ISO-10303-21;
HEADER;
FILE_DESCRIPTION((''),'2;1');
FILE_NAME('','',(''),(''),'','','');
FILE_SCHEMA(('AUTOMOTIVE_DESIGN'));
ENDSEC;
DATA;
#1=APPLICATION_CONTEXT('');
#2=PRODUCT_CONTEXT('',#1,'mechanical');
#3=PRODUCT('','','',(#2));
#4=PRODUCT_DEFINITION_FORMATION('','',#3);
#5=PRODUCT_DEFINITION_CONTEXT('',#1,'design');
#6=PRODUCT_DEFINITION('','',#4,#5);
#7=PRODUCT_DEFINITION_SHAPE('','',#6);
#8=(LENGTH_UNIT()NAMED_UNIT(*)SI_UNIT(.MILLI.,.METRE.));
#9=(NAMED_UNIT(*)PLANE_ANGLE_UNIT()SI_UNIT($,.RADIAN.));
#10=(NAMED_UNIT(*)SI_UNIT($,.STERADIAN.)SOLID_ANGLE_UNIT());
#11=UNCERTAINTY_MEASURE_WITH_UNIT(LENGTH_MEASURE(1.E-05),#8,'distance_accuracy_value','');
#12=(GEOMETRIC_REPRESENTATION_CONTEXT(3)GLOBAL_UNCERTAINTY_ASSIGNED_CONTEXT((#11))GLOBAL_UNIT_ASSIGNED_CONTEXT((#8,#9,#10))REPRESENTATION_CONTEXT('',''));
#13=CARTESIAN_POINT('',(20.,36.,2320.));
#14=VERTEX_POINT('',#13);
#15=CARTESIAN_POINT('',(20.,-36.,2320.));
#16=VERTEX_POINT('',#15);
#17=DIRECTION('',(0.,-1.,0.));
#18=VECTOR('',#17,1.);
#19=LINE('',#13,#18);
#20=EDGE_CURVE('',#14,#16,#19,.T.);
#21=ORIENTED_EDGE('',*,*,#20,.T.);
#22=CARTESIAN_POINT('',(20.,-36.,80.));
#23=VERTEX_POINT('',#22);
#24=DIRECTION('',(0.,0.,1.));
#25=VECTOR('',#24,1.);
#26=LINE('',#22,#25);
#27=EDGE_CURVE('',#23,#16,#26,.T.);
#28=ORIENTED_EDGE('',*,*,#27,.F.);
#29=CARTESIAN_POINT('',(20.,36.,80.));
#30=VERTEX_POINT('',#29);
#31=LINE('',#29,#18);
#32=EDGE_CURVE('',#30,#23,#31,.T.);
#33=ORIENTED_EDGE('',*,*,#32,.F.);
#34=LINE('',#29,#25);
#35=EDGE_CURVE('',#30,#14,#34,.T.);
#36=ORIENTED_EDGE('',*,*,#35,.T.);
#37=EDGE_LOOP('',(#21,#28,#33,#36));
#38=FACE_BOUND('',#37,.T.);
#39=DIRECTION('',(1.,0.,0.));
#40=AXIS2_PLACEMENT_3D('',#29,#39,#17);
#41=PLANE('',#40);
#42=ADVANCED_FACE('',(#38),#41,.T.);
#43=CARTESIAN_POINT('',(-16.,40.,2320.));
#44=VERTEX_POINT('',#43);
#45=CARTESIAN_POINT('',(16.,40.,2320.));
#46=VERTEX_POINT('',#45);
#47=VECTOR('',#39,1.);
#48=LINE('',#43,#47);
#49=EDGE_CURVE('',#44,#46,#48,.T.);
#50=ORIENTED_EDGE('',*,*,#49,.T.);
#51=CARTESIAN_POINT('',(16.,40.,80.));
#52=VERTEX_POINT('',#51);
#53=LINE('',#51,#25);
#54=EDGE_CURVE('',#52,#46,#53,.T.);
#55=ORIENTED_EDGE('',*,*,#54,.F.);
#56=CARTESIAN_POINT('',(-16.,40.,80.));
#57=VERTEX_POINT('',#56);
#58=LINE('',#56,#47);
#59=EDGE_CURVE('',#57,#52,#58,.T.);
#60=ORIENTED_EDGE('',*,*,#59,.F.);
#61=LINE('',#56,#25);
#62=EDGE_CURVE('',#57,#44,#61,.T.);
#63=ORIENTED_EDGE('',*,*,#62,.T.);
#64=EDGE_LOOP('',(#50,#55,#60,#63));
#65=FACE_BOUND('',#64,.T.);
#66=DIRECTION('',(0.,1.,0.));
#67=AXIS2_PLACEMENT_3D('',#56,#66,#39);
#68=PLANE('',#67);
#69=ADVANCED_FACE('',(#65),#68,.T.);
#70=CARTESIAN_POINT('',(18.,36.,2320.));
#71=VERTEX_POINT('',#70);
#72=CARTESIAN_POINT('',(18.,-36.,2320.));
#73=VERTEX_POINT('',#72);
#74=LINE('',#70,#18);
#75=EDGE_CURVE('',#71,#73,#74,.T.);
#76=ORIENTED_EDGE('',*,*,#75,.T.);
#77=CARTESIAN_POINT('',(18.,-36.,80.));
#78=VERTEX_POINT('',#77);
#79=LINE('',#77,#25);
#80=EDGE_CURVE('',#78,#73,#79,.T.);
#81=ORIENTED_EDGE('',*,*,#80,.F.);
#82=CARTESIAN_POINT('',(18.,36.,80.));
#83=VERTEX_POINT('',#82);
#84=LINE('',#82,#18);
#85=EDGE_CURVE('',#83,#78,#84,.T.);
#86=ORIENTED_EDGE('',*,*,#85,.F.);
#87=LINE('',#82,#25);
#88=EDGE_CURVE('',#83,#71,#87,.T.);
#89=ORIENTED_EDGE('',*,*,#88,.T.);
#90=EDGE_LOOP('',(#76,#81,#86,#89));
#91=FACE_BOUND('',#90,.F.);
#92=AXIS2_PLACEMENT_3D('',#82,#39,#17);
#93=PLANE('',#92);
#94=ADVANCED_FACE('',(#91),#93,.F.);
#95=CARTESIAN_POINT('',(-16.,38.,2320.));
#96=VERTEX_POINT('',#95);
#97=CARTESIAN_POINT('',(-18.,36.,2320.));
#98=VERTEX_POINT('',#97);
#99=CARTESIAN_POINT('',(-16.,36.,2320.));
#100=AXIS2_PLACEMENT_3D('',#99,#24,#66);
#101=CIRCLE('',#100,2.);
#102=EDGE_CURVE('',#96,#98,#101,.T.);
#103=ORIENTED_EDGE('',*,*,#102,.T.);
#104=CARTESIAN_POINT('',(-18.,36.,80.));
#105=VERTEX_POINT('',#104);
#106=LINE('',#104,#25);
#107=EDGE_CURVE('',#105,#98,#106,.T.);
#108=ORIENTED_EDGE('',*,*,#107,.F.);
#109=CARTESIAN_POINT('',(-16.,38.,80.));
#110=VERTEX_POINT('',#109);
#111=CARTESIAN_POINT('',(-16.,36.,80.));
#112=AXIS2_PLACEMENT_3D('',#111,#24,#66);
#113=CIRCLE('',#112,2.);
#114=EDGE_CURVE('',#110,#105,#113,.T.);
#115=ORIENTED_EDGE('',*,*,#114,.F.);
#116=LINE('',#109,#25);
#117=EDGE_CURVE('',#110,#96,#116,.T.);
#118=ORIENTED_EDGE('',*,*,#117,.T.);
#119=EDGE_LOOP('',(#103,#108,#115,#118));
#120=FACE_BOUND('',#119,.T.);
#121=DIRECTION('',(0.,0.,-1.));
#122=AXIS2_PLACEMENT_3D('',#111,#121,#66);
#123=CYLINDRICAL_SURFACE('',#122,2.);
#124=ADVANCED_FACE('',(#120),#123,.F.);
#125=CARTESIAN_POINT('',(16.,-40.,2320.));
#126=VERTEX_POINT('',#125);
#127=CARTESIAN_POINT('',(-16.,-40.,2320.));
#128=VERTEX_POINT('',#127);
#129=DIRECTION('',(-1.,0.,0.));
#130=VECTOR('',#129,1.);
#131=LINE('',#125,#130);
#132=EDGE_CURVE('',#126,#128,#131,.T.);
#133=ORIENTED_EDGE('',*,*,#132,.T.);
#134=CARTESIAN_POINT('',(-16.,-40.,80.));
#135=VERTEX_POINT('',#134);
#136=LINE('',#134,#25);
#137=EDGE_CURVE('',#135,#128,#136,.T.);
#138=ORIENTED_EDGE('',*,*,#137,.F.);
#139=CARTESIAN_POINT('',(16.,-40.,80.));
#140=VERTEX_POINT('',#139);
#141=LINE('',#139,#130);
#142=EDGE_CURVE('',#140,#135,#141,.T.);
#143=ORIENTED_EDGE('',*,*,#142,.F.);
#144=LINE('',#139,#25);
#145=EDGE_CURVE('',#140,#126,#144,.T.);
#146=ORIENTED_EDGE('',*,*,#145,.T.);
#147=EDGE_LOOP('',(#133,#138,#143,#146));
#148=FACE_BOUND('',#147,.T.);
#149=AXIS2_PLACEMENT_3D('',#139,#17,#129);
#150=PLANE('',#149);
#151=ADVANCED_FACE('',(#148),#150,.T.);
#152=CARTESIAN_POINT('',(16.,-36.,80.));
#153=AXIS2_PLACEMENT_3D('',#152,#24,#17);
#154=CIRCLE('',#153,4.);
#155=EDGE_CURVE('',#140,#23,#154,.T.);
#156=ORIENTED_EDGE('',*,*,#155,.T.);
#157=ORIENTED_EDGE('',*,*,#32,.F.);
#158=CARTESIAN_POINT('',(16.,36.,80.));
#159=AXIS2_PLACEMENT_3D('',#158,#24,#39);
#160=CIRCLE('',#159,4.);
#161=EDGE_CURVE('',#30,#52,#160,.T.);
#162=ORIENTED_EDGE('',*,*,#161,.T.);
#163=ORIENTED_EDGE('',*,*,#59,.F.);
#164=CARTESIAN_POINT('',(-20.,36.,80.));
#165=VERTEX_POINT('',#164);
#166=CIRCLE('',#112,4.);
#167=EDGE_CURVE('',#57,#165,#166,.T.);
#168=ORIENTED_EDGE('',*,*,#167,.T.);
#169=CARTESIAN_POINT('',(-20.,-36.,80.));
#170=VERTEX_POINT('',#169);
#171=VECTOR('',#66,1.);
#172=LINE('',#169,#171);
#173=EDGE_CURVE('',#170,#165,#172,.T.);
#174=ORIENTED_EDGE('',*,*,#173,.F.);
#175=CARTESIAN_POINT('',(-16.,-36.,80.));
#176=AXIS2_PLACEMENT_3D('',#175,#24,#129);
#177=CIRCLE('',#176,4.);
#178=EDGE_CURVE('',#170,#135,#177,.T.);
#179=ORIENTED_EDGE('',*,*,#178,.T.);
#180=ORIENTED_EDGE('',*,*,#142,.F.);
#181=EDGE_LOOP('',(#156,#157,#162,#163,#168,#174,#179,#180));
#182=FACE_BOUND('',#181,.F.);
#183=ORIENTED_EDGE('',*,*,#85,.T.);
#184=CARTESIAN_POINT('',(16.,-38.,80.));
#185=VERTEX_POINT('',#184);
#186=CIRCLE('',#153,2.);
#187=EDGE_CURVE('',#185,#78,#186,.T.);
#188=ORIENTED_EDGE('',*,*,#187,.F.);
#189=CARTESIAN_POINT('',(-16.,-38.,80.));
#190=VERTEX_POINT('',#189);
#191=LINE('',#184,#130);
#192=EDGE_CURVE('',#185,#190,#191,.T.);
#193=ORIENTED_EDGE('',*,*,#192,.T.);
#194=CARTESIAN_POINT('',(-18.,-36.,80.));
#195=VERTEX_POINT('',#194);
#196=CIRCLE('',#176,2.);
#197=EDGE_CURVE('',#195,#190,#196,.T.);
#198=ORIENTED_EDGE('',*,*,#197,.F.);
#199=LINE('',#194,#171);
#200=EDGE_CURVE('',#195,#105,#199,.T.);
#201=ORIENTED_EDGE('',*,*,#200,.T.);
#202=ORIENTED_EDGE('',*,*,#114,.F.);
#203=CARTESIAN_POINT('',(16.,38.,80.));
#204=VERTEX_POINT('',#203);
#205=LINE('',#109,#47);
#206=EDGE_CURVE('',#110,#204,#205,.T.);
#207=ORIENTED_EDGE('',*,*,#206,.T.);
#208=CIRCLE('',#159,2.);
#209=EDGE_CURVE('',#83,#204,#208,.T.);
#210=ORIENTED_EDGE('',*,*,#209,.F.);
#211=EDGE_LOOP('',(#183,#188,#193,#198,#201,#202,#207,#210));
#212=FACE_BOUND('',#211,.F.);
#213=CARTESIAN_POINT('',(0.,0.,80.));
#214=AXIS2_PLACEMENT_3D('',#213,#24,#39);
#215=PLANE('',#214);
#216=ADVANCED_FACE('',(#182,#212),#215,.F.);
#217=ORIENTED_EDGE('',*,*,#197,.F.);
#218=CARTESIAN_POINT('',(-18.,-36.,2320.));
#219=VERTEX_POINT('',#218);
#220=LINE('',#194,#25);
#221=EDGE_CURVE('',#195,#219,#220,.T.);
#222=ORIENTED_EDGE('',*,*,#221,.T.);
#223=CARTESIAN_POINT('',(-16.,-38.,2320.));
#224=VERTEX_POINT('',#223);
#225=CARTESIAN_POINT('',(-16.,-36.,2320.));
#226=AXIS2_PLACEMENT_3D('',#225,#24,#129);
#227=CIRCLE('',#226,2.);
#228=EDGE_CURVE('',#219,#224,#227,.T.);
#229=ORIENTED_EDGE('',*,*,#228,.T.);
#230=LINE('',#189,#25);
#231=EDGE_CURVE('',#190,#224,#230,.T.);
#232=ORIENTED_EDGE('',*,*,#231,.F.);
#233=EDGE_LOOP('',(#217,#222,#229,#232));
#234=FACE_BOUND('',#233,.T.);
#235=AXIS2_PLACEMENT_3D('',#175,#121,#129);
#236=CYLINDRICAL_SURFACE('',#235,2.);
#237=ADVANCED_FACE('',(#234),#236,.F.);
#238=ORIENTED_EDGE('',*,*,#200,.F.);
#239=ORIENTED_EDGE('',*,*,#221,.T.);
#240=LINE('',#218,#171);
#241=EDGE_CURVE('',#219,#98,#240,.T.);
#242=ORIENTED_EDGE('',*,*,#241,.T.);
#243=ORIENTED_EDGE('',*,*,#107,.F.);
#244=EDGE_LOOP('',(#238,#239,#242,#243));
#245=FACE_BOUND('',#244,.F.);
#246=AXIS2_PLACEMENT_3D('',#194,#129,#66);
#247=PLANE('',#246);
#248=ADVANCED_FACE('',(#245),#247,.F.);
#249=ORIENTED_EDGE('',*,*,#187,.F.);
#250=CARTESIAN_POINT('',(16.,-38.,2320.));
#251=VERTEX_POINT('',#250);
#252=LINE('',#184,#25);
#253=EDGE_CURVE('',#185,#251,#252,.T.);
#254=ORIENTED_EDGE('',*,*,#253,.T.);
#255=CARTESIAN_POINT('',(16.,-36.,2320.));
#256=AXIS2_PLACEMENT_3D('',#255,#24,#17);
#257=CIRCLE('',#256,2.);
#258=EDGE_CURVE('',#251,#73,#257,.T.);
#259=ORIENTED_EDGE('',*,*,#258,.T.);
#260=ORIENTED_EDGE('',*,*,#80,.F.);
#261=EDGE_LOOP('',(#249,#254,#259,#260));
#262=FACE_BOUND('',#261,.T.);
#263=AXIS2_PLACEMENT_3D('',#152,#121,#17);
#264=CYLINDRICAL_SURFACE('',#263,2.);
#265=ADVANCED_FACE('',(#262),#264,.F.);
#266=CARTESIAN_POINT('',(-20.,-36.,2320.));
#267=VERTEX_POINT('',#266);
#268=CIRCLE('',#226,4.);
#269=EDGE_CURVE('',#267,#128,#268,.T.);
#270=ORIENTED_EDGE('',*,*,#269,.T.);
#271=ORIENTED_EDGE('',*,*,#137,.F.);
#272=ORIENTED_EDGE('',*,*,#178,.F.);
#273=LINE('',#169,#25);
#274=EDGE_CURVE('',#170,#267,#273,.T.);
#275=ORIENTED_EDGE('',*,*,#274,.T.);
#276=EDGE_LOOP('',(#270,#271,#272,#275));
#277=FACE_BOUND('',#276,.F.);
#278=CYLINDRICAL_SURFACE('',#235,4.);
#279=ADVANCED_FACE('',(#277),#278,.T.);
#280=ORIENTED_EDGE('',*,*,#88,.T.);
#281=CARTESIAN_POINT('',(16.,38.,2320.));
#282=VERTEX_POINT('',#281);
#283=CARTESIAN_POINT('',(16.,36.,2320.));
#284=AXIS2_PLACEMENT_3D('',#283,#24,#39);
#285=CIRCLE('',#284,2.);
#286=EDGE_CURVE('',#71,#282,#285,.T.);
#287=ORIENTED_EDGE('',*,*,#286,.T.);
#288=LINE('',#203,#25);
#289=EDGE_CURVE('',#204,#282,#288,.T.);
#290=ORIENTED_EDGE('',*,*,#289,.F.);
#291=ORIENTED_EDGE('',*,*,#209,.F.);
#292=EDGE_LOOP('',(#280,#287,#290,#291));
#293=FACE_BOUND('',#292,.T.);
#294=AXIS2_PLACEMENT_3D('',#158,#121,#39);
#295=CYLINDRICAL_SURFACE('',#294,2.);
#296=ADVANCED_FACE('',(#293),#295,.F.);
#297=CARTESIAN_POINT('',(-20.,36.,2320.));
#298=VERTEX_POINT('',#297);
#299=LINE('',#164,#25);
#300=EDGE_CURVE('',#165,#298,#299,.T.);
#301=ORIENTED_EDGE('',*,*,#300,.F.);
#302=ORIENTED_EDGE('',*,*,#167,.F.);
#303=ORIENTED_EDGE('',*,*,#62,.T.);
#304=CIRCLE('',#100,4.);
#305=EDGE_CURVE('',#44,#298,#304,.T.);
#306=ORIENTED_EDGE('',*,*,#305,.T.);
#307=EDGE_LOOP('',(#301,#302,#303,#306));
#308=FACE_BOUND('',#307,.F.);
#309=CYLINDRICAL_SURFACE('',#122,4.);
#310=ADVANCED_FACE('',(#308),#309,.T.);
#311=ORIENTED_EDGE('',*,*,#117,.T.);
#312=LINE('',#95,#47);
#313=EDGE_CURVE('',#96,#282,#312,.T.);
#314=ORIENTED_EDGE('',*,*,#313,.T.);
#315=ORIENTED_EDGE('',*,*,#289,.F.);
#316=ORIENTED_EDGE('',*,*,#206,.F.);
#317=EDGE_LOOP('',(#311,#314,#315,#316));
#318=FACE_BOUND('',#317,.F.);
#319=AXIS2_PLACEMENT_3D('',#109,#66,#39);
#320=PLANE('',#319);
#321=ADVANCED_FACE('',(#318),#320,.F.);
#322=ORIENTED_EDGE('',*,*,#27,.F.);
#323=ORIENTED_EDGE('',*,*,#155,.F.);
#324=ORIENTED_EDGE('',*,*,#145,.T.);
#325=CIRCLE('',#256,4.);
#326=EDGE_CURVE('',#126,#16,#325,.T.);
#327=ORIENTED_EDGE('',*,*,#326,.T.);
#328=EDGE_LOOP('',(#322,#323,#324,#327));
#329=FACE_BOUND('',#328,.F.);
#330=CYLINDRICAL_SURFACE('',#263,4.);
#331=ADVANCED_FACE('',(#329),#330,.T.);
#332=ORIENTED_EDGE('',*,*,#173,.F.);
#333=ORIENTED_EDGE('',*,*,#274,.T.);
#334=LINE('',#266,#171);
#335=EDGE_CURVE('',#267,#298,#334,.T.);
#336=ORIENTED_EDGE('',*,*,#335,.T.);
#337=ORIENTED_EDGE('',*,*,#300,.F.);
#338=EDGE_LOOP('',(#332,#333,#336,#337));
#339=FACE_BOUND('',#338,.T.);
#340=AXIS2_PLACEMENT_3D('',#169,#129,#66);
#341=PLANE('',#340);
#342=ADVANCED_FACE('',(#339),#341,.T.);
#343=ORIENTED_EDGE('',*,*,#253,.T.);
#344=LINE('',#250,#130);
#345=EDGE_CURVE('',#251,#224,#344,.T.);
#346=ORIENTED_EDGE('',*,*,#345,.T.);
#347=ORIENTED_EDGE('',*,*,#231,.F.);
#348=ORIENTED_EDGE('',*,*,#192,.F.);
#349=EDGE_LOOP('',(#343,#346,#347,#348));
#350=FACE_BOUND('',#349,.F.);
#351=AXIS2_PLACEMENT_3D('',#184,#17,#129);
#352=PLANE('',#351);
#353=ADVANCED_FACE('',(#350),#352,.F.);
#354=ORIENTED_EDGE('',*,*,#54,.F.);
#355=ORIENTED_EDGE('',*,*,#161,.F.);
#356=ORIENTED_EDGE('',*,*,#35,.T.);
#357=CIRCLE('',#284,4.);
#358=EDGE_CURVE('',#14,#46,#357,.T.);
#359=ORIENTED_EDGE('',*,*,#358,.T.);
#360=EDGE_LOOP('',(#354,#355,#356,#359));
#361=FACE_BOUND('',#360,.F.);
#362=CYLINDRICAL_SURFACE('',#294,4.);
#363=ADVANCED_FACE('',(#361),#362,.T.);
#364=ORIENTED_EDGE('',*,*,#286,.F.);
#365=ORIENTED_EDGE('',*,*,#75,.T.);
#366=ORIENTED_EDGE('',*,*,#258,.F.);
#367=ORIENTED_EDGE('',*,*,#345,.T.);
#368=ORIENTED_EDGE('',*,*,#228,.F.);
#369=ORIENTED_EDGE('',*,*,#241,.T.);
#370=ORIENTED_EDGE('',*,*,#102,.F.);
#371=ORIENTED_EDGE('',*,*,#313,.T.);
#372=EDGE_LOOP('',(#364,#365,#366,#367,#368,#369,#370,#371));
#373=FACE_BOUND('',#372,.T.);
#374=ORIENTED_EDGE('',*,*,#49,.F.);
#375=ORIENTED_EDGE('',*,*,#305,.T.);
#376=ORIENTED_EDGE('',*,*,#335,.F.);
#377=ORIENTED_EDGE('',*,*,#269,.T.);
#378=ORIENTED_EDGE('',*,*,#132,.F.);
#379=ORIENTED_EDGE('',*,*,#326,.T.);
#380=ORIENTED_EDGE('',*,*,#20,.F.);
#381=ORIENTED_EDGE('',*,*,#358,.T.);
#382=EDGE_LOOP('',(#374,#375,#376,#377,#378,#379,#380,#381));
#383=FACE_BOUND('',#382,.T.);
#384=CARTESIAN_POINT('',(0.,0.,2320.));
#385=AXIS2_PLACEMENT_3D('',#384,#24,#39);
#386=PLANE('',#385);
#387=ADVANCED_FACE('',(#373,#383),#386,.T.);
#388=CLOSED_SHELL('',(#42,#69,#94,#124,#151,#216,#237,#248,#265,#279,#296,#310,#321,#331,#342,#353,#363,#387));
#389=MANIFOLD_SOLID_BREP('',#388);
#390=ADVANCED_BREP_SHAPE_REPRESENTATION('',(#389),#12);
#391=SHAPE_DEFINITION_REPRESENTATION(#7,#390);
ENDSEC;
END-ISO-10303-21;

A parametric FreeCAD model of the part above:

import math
import FreeCAD as App
import Part
import Sketcher

V = App.Vector
Q = App.Units.Quantity

doc = App.newDocument("Part")
body = doc.addObject("PartDesign::Body", "Body")

# Sketch on XY plane
sketch1 = doc.addObject("Sketcher::SketchObject", "Sketch")
body.addObject(sketch1)
sketch1.AttachmentSupport = (doc.XY_Plane, [""])
sketch1.MapMode = "FlatFace"
sketch1.AttachmentOffset = App.Placement(V(0, 0, 80), App.Rotation())
sketch1.addGeometry([
    Part.LineSegment(V(-20, 36, 0), V(-20, -36, 0)),  # 0
    Part.ArcOfCircle(Part.Circle(V(-16, -36, 0), V(0, 0, 1), 4), math.radians(180), math.radians(270)),  # 1
    Part.LineSegment(V(-16, -40, 0), V(16, -40, 0)),  # 2
    Part.ArcOfCircle(Part.Circle(V(16, -36, 0), V(0, 0, 1), 4), math.radians(-90), math.radians(0)),  # 3
    Part.LineSegment(V(20, -36, 0), V(20, 36, 0)),  # 4
    Part.ArcOfCircle(Part.Circle(V(16, 36, 0), V(0, 0, 1), 4), math.radians(0), math.radians(90)),  # 5
    Part.LineSegment(V(16, 40, 0), V(-16, 40, 0)),  # 6
    Part.ArcOfCircle(Part.Circle(V(-16, 36, 0), V(0, 0, 1), 4), math.radians(90), math.radians(180)),  # 7
    Part.ArcOfCircle(Part.Circle(V(-16, 36, 0), V(0, 0, 1), 2), math.radians(90), math.radians(180)),  # 8
    Part.LineSegment(V(-16, 38, 0), V(16, 38, 0)),  # 9
    Part.ArcOfCircle(Part.Circle(V(16, 36, 0), V(0, 0, 1), 2), math.radians(0), math.radians(90)),  # 10
    Part.LineSegment(V(18, 36, 0), V(18, -36, 0)),  # 11
    Part.ArcOfCircle(Part.Circle(V(16, -36, 0), V(0, 0, 1), 2), math.radians(-90), math.radians(0)),  # 12
    Part.LineSegment(V(16, -38, 0), V(-16, -38, 0)),  # 13
    Part.ArcOfCircle(Part.Circle(V(-16, -36, 0), V(0, 0, 1), 2), math.radians(180), math.radians(270)),  # 14
    Part.LineSegment(V(-18, -36, 0), V(-18, 36, 0)),  # 15
], False)
sketch1.addConstraint([
    Sketcher.Constraint("Tangent", 0, 2, 1, 1),
    Sketcher.Constraint("Tangent", 1, 2, 2, 1),
    Sketcher.Constraint("Tangent", 2, 2, 3, 1),
    Sketcher.Constraint("Tangent", 3, 2, 4, 1),
    Sketcher.Constraint("Tangent", 4, 2, 5, 1),
    Sketcher.Constraint("Tangent", 5, 2, 6, 1),
    Sketcher.Constraint("Tangent", 6, 2, 7, 1),
    Sketcher.Constraint("Tangent", 7, 2, 0, 1),
    Sketcher.Constraint("Tangent", 8, 1, 9, 1),
    Sketcher.Constraint("Tangent", 9, 2, 10, 2),
    Sketcher.Constraint("Tangent", 10, 1, 11, 1),
    Sketcher.Constraint("Tangent", 11, 2, 12, 2),
    Sketcher.Constraint("Tangent", 12, 1, 13, 1),
    Sketcher.Constraint("Tangent", 13, 2, 14, 2),
    Sketcher.Constraint("Tangent", 14, 1, 15, 1),
    Sketcher.Constraint("Tangent", 15, 2, 8, 2),
    Sketcher.Constraint("Vertical", 0),
    Sketcher.Constraint("Horizontal", 2),
    Sketcher.Constraint("Vertical", 4),
    Sketcher.Constraint("Horizontal", 6),
    Sketcher.Constraint("Horizontal", 9),
    Sketcher.Constraint("Vertical", 11),
    Sketcher.Constraint("Horizontal", 13),
    Sketcher.Constraint("Vertical", 15),
    Sketcher.Constraint("Coincident", 8, 3, 7, 3),
    Sketcher.Constraint("Coincident", 10, 3, 5, 3),
    Sketcher.Constraint("Coincident", 12, 3, 3, 3),
    Sketcher.Constraint("Equal", 1, 3),
    Sketcher.Constraint("Equal", 3, 5),
    Sketcher.Constraint("Equal", 5, 7),
    Sketcher.Constraint("Equal", 12, 14),
    Sketcher.Constraint("Symmetric", 1, 3, 5, 3, -1, 1),
    Sketcher.Constraint("Radius", 1, Q("4 mm")),
    Sketcher.Constraint("Radius", 8, Q("2 mm")),
    Sketcher.Constraint("DistanceX", 0, 2, -1, 1, Q("20 mm")),
    Sketcher.Constraint("DistanceY", 1, 2, -1, 1, Q("40 mm")),
])
pad1 = doc.addObject("PartDesign::Pad", "Pad")
body.addObject(pad1)
pad1.Profile = sketch1
pad1.Length = 2240

doc.recompute()
